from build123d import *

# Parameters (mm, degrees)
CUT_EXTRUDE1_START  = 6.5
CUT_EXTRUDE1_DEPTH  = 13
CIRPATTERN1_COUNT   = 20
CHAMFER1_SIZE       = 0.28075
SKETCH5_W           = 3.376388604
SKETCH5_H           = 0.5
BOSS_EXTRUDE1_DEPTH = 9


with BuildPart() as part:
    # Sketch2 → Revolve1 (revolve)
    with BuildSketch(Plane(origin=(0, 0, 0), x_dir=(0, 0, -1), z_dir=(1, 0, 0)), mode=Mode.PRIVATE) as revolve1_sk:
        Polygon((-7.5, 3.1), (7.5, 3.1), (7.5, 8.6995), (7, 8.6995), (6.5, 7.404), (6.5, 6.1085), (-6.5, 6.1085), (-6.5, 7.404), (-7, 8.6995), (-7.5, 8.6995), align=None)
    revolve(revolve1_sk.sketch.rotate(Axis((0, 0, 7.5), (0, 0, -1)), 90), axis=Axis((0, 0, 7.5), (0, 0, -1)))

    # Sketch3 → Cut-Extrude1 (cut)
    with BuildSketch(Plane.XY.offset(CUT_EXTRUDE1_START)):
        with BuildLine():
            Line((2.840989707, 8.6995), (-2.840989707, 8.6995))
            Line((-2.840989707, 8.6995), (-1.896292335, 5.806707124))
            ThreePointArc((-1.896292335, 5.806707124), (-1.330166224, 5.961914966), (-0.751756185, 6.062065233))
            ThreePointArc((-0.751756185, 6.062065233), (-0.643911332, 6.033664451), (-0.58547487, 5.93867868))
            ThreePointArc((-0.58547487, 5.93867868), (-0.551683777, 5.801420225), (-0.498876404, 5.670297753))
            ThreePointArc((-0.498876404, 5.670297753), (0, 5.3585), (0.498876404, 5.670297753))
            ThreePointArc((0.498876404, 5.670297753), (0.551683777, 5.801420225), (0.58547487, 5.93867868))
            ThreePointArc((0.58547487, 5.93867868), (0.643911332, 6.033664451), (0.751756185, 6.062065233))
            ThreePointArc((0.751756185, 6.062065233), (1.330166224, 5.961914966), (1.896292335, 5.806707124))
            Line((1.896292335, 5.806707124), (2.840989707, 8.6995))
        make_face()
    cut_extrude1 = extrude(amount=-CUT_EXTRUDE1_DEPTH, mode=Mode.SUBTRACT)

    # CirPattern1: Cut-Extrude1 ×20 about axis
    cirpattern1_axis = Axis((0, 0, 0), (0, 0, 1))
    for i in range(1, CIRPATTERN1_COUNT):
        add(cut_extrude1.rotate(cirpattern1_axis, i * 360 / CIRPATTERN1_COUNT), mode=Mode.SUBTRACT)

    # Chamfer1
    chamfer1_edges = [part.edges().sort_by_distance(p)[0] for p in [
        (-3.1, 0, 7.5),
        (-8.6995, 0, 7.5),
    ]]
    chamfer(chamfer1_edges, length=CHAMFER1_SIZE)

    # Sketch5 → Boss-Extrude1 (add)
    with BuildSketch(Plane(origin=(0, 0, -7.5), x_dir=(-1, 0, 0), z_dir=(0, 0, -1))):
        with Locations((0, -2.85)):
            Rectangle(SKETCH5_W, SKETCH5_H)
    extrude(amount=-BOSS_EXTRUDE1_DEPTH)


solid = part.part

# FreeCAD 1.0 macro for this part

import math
import FreeCAD as App
import Part
import Sketcher
Q = App.Units.Quantity


def edges_at(feature, points):
    """Names of the edges that pass closest to the given points."""
    edges = feature.Shape.Edges
    near = lambda p: min(range(len(edges)), key=lambda i: edges[i].distToShape(Part.Vertex(*p))[0])
    return sorted({f"Edge{near(p) + 1}" for p in points})


def add_polygon(sketch, points):
    """Adds a closed chain of lines whose ends are joined by coincident constraints."""
    first, n = sketch.GeometryCount, len(points)
    for a, b in zip(points, points[1:] + points[:1]):
        sketch.addGeometry(Part.LineSegment(App.Vector(*a, 0), App.Vector(*b, 0)), False)
    for i in range(n):
        sketch.addConstraint(Sketcher.Constraint("Coincident", first + i, 2, first + (i + 1) % n, 1))

doc = App.newDocument("Part")
params = doc.addObject("Spreadsheet::Sheet", "Params")
for row, (alias, value) in enumerate([
    ("sketch1_height", "15 mm"),
    ("sketch1_height2", "13 mm"),
    ("sketch1_height3", "0.5 mm"),
    ("revolution_angle", "360 deg"),
    ("sketch2_radius", "1 mm"),
    ("sketch2_radius2", "0.15 mm"),
    ("pocket1_length", "13 mm"),
    ("chamfer_size", "0.28075 mm"),
    ("sketch3_height", "0.5 mm"),
    ("pad1_length", "9 mm"),
], start=1):
    params.set(f"A{row}", alias)
    params.set(f"B{row}", "=" + value)
    params.setAlias(f"B{row}", alias)

body = doc.addObject("PartDesign::Body", "Body")

sketch1 = body.newObject("Sketcher::SketchObject", "Sketch")
sketch1.AttachmentSupport = (doc.getObject("YZ_Plane"), [""])
sketch1.MapMode = "FlatFace"
add_polygon(sketch1, [(3.1, 7.5), (3.1, -7.5), (8.7, -7.5), (8.7, -7), (7.4, -6.5), (6.1, -6.5), (6.1, 6.5), (7.4, 6.5), (8.7, 7), (8.7, 7.5)])
sketch1.addConstraint(Sketcher.Constraint("Vertical", 0))
sketch1.addConstraint(Sketcher.Constraint("Horizontal", 1))
sketch1.addConstraint(Sketcher.Constraint("Vertical", 2))
sketch1.addConstraint(Sketcher.Constraint("Horizontal", 4))
sketch1.addConstraint(Sketcher.Constraint("Vertical", 5))
sketch1.addConstraint(Sketcher.Constraint("Horizontal", 6))
sketch1.addConstraint(Sketcher.Constraint("Vertical", 8))
sketch1.addConstraint(Sketcher.Constraint("Horizontal", 9))
sketch1.addConstraint(Sketcher.Constraint("Symmetric", 3, 2, 6, 2, -1))
sketch1.addConstraint(Sketcher.Constraint("Symmetric", 2, 2, 7, 2, -1))
sketch1.addConstraint(Sketcher.Constraint("Equal", 2, 8))
sketch1.addConstraint(Sketcher.Constraint("DistanceY", 0, 2, 0, 1, Q("15 mm")))
sketch1.addConstraint(Sketcher.Constraint("DistanceY", 5, 1, 5, 2, Q("13 mm")))
sketch1.addConstraint(Sketcher.Constraint("DistanceY", 2, 1, 2, 2, Q("0.5 mm")))
sketch1.addConstraint(Sketcher.Constraint("DistanceX", -1, 1, 0, 2, Q("3.1 mm")))
sketch1.addConstraint(Sketcher.Constraint("DistanceX", 1, 1, 1, 2, Q("5.5995 mm")))
sketch1.addConstraint(Sketcher.Constraint("DistanceX", 4, 2, 4, 1, Q("1.2955 mm")))
sketch1.addConstraint(Sketcher.Constraint("DistanceX", -1, 1, 3, 2, Q("7.404 mm")))
sketch1.setExpression("Constraints[21]", "Params.sketch1_height")
sketch1.setExpression("Constraints[22]", "Params.sketch1_height2")
sketch1.setExpression("Constraints[23]", "Params.sketch1_height3")
revolution = body.newObject("PartDesign::Revolution", "Revolution")
revolution.Profile = sketch1
revolution.ReferenceAxis = (sketch1, ["V_Axis"])
revolution.setExpression("Angle", "Params.revolution_angle")

sketch2 = body.newObject("Sketcher::SketchObject", "Sketch001")
sketch2.AttachmentSupport = (doc.getObject("XY_Plane"), [""])
sketch2.MapMode = "FlatFace"
sketch2.AttachmentOffset = App.Placement(App.Vector(0, 0, 6.5), App.Rotation())
sketch2.addGeometry(Part.LineSegment(App.Vector(2.84, 8.7, 0), App.Vector(-2.84, 8.7, 0)), False)
sketch2.addGeometry(Part.LineSegment(App.Vector(-2.84, 8.7, 0), App.Vector(-1.9, 5.81, 0)), False)
sketch2.addGeometry(Part.ArcOfCircle(Part.Circle(App.Vector(0, 0, 0), App.Vector(0, 0, 1), 6.11), math.radians(97.07), math.radians(108.09)), False)
sketch2.addGeometry(Part.ArcOfCircle(Part.Circle(App.Vector(-0.73, 5.91, 0), App.Vector(0, 0, 1), 0.15), math.radians(10), math.radians(97)), False)
sketch2.addGeometry(Part.ArcOfCircle(Part.Circle(App.Vector(0.4, 6.11, 0), App.Vector(0, 0, 1), 1), math.radians(-170.22), math.radians(-154.01)), False)
sketch2.addGeometry(Part.ArcOfCircle(Part.Circle(App.Vector(0, 5.91, 0), App.Vector(0, 0, 1), 0.55), math.radians(-154), math.radians(-26)), False)
sketch2.addGeometry(Part.ArcOfCircle(Part.Circle(App.Vector(-0.4, 6.11, 0), App.Vector(0, 0, 1), 1), math.radians(-25.99), math.radians(-9.78)), False)
sketch2.addGeometry(Part.ArcOfCircle(Part.Circle(App.Vector(0.73, 5.91, 0), App.Vector(0, 0, 1), 0.15), math.radians(83), math.radians(170)), False)
sketch2.addGeometry(Part.ArcOfCircle(Part.Circle(App.Vector(0, 0, 0), App.Vector(0, 0, 1), 6.11), math.radians(71.91), math.radians(82.93)), False)
sketch2.addGeometry(Part.LineSegment(App.Vector(1.9, 5.81, 0), App.Vector(2.84, 8.7, 0)), False)
sketch2.addConstraint(Sketcher.Constraint("Coincident", 0, 2, 1, 1))
sketch2.addConstraint(Sketcher.Constraint("Coincident", 1, 2, 2, 2))
sketch2.addConstraint(Sketcher.Constraint("Tangent", 2, 1, 3, 2))
sketch2.addConstraint(Sketcher.Constraint("Tangent", 3, 1, 4, 1))
sketch2.addConstraint(Sketcher.Constraint("Tangent", 4, 2, 5, 1))
sketch2.addConstraint(Sketcher.Constraint("Tangent", 5, 2, 6, 1))
sketch2.addConstraint(Sketcher.Constraint("Tangent", 6, 2, 7, 2))
sketch2.addConstraint(Sketcher.Constraint("Tangent", 7, 1, 8, 2))
sketch2.addConstraint(Sketcher.Constraint("Coincident", 8, 1, 9, 1))
sketch2.addConstraint(Sketcher.Constraint("Coincident", 9, 2, 0, 1))
sketch2.addConstraint(Sketcher.Constraint("Horizontal", 0))
sketch2.addConstraint(Sketcher.Constraint("Coincident", 2, 3, -1, 1))
sketch2.addConstraint(Sketcher.Constraint("Coincident", 8, 3, -1, 1))
sketch2.addConstraint(Sketcher.Constraint("Equal", 4, 6))
sketch2.addConstraint(Sketcher.Constraint("Equal", 3, 7))
sketch2.addConstraint(Sketcher.Constraint("Equal", 2, 8))
sketch2.addConstraint(Sketcher.Constraint("Symmetric", 4, 3, 6, 3, -2))
sketch2.addConstraint(Sketcher.Constraint("Horizontal", 1, 2, 8, 1))
sketch2.addConstraint(Sketcher.Constraint("Equal", 1, 9))
sketch2.addConstraint(Sketcher.Constraint("Radius", 4, Q("1 mm")))
sketch2.addConstraint(Sketcher.Constraint("Radius", 3, Q("0.15 mm")))
sketch2.addConstraint(Sketcher.Constraint("Radius", 5, Q("0.555 mm")))
sketch2.addConstraint(Sketcher.Constraint("DistanceX", -1, 1, 4, 3, Q("0.4 mm")))
sketch2.addConstraint(Sketcher.Constraint("Radius", 2, Q("6.1085 mm")))
sketch2.addConstraint(Sketcher.Constraint("DistanceY", 6, 3, 0, 2, Q("2.591 mm")))
sketch2.addConstraint(Sketcher.Constraint("DistanceX", 0, 2, 0, 1, Q("5.681979 mm")))
sketch2.addConstraint(Sketcher.Constraint("DistanceY", -1, 1, 4, 3, Q("6.1085 mm")))
sketch2.addConstraint(Sketcher.Constraint("DistanceY", 1, 2, 3, 3, Q("0.106498 mm")))
sketch2.setExpression("Constraints[19]", "Params.sketch2_radius")
sketch2.setExpression("Constraints[20]", "Params.sketch2_radius2")
pocket1 = body.newObject("PartDesign::Pocket", "Pocket")
pocket1.Profile = sketch2
pocket1.setExpression("Length", "Params.pocket1_length")
doc.recompute()

polarpattern = body.newObject("PartDesign::PolarPattern", "PolarPattern")
polarpattern.Originals = [pocket1]
polarpattern.Axis = (doc.getObject("Z_Axis"), [""])
polarpattern.Angle = 360
polarpattern.Occurrences = 20
body.Tip = polarpattern
doc.recompute()

chamfer = body.newObject("PartDesign::Chamfer", "Chamfer")
chamfer.Base = (polarpattern, edges_at(polarpattern, [(-3.1, 0, 7.5), (-8.7, 0, 7.5)]))
chamfer.setExpression("Size", "Params.chamfer_size")

sketch3 = body.newObject("Sketcher::SketchObject", "Sketch002")
sketch3.AttachmentSupport = (doc.getObject("XY_Plane"), [""])
sketch3.MapMode = "FlatFace"
sketch3.AttachmentOffset = App.Placement(App.Vector(0, 0, -7.5), App.Rotation())
add_polygon(sketch3, [(1.7, -2.6), (1.7, -3.1), (-1.7, -3.1), (-1.7, -2.6)])
sketch3.addConstraint(Sketcher.Constraint("Vertical", 0))
sketch3.addConstraint(Sketcher.Constraint("Horizontal", 1))
sketch3.addConstraint(Sketcher.Constraint("Vertical", 2))
sketch3.addConstraint(Sketcher.Constraint("Horizontal", 3))
sketch3.addConstraint(Sketcher.Constraint("DistanceY", 0, 2, 0, 1, Q("0.5 mm")))
sketch3.addConstraint(Sketcher.Constraint("DistanceY", 0, 2, -1, 1, Q("3.1 mm")))
sketch3.addConstraint(Sketcher.Constraint("DistanceX", 1, 2, 1, 1, Q("3.376389 mm")))
sketch3.addConstraint(Sketcher.Constraint("DistanceX", -1, 1, 0, 2, Q("1.688194 mm")))
sketch3.setExpression("Constraints[8]", "Params.sketch3_height")
pad1 = body.newObject("PartDesign::Pad", "Pad")
pad1.Profile = sketch3
pad1.setExpression("Length", "Params.pad1_length")

doc.recompute()
